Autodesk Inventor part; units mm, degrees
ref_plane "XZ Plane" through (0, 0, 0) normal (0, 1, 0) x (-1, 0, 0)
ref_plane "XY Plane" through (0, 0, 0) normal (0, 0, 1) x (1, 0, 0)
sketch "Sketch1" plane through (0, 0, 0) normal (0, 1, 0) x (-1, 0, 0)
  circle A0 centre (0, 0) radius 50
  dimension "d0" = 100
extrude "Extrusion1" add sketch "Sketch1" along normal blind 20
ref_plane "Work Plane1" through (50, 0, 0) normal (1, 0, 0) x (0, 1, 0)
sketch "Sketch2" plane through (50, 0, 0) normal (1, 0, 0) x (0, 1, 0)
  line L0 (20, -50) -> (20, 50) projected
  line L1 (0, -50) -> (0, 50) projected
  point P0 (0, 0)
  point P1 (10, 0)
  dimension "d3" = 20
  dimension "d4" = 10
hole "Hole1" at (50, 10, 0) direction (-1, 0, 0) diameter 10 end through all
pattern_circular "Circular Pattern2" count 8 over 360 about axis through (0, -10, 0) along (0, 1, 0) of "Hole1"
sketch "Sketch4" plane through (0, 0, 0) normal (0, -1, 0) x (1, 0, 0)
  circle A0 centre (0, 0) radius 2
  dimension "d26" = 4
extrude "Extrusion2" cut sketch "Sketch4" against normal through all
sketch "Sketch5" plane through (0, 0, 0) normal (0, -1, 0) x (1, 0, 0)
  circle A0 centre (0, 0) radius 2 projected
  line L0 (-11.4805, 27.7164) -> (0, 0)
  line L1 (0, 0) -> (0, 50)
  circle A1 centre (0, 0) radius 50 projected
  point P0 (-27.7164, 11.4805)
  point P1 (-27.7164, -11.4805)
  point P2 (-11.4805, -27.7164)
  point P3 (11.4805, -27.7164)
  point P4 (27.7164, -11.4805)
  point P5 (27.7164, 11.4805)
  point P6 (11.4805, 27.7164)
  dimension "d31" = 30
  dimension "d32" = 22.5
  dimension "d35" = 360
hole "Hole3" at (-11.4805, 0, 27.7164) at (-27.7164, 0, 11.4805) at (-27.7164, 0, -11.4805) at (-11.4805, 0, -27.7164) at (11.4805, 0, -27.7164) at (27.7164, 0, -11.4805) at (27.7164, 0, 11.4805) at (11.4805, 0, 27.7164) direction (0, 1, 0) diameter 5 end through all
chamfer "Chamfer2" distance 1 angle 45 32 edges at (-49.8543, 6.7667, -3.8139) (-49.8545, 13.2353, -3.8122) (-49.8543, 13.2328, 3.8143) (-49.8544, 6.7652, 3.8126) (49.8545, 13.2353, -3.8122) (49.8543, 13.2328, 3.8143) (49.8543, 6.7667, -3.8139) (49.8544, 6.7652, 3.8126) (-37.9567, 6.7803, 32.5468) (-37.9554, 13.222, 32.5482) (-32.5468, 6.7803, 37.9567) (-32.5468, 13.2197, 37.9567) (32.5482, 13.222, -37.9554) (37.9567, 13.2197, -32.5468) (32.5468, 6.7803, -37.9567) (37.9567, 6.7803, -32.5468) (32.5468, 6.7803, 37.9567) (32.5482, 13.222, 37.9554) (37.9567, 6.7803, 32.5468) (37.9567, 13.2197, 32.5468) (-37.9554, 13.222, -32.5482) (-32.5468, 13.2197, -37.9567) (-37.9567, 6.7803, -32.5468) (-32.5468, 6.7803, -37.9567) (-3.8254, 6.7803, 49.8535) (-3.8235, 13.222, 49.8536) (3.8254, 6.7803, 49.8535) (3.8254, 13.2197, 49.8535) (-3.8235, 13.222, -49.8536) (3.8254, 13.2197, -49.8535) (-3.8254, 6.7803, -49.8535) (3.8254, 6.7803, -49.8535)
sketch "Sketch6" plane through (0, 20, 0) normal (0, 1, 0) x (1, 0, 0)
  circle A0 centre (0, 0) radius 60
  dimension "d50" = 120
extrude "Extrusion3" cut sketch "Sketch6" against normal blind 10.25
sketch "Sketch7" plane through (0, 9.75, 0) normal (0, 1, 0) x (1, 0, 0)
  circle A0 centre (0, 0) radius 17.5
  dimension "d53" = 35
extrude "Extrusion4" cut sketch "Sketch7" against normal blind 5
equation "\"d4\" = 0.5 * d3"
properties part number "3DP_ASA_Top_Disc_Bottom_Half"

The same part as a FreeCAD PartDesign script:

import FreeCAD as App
import Part
import Sketcher
Q = App.Units.Quantity


def edges_at(feature, points):
    """Names of the edges that pass closest to the given points."""
    edges = feature.Shape.Edges
    near = lambda p: min(range(len(edges)), key=lambda i: edges[i].distToShape(Part.Vertex(*p))[0])
    return sorted({f"Edge{near(p) + 1}" for p in points})

doc = App.newDocument("Part")
body = doc.addObject("PartDesign::Body", "Body")

# Sketch on XZ plane
sketch1 = body.newObject("Sketcher::SketchObject", "Sketch")
sketch1.AttachmentSupport = (doc.getObject("XZ_Plane"), [""])
sketch1.MapMode = "FlatFace"
sketch1.addGeometry(Part.Circle(App.Vector(0, 0, 0), App.Vector(0, 0, 1), 50), False)
sketch1.addConstraint(Sketcher.Constraint("Coincident", 0, 3, -1, 1))
sketch1.addConstraint(Sketcher.Constraint("Diameter", 0, Q("100 mm")))
pad1 = body.newObject("PartDesign::Pad", "Pad")
pad1.Profile = sketch1
pad1.Length = 20
pad1.Reversed = True

# Sketch on YZ plane
sketch2 = body.newObject("Sketcher::SketchObject", "Sketch001")
sketch2.AttachmentSupport = (doc.getObject("YZ_Plane"), [""])
sketch2.MapMode = "FlatFace"
sketch2.AttachmentOffset = App.Placement(App.Vector(0, 0, 50), App.Rotation())
sketch2.addGeometry(Part.Circle(App.Vector(10, 0, 0), App.Vector(0, 0, 1), 5), False)
sketch2.addConstraint(Sketcher.Constraint("PointOnObject", 0, 3, -1))
sketch2.addConstraint(Sketcher.Constraint("Diameter", 0, Q("10 mm")))
sketch2.addConstraint(Sketcher.Constraint("DistanceX", -1, 1, 0, 3, Q("10 mm")))
doc.recompute()
hole = body.newObject("PartDesign::Hole", "Hole")
hole.Profile = sketch2
hole.ThreadType = "None"
hole.Diameter = 10
hole.DepthType = "ThroughAll"
doc.recompute()

polarpattern = body.newObject("PartDesign::PolarPattern", "PolarPattern")
polarpattern.Originals = [hole]
polarpattern.Axis = (doc.getObject("Y_Axis"), [""])
polarpattern.Angle = 360
polarpattern.Occurrences = 8
body.Tip = polarpattern

# Sketch on XZ plane
sketch3 = body.newObject("Sketcher::SketchObject", "Sketch002")
sketch3.AttachmentSupport = (doc.getObject("XZ_Plane"), [""])
sketch3.MapMode = "FlatFace"
sketch3.addGeometry(Part.Circle(App.Vector(0, 0, 0), App.Vector(0, 0, 1), 2), False)
sketch3.addConstraint(Sketcher.Constraint("Coincident", 0, 3, -1, 1))
sketch3.addConstraint(Sketcher.Constraint("Diameter", 0, Q("4 mm")))
pocket1 = body.newObject("PartDesign::Pocket", "Pocket")
pocket1.Profile = sketch3
pocket1.Type = "ThroughAll"

# Sketch on XZ plane
sketch4 = body.newObject("Sketcher::SketchObject", "Sketch003")
sketch4.AttachmentSupport = (doc.getObject("XZ_Plane"), [""])
sketch4.MapMode = "FlatFace"
sketch4.addGeometry(Part.Circle(App.Vector(-11.5, 27.7, 0), App.Vector(0, 0, 1), 2.5), False)
sketch4.addGeometry(Part.Circle(App.Vector(-27.7, 11.5, 0), App.Vector(0, 0, 1), 2.5), False)
sketch4.addGeometry(Part.Circle(App.Vector(-27.7, -11.5, 0), App.Vector(0, 0, 1), 2.5), False)
sketch4.addGeometry(Part.Circle(App.Vector(-11.5, -27.7, 0), App.Vector(0, 0, 1), 2.5), False)
sketch4.addGeometry(Part.Circle(App.Vector(11.5, -27.7, 0), App.Vector(0, 0, 1), 2.5), False)
sketch4.addGeometry(Part.Circle(App.Vector(27.7, -11.5, 0), App.Vector(0, 0, 1), 2.5), False)
sketch4.addGeometry(Part.Circle(App.Vector(27.7, 11.5, 0), App.Vector(0, 0, 1), 2.5), False)
sketch4.addGeometry(Part.Circle(App.Vector(11.5, 27.7, 0), App.Vector(0, 0, 1), 2.5), False)
sketch4.addConstraint(Sketcher.Constraint("Equal", 0, 1))
sketch4.addConstraint(Sketcher.Constraint("Equal", 1, 2))
sketch4.addConstraint(Sketcher.Constraint("Equal", 2, 3))
sketch4.addConstraint(Sketcher.Constraint("Equal", 3, 4))
sketch4.addConstraint(Sketcher.Constraint("Equal", 4, 5))
sketch4.addConstraint(Sketcher.Constraint("Equal", 5, 6))
sketch4.addConstraint(Sketcher.Constraint("Equal", 6, 7))
sketch4.addConstraint(Sketcher.Constraint("Symmetric", 0, 3, 4, 3, -1, 1))
sketch4.addConstraint(Sketcher.Constraint("Symmetric", 1, 3, 5, 3, -1, 1))
sketch4.addConstraint(Sketcher.Constraint("Symmetric", 2, 3, 6, 3, -1, 1))
sketch4.addConstraint(Sketcher.Constraint("Symmetric", 3, 3, 7, 3, -1, 1))
sketch4.addConstraint(Sketcher.Constraint("Symmetric", 3, 3, 4, 3, -2))
sketch4.addConstraint(Sketcher.Constraint("Symmetric", 2, 3, 5, 3, -2))
sketch4.addConstraint(Sketcher.Constraint("Diameter", 0, Q("5 mm")))
sketch4.addConstraint(Sketcher.Constraint("DistanceX", 1, 3, 0, 3, Q("16.236 mm")))
sketch4.addConstraint(Sketcher.Constraint("DistanceY", 1, 3, 0, 3, Q("16.236 mm")))
sketch4.addConstraint(Sketcher.Constraint("DistanceY", 2, 3, 1, 3, Q("22.961 mm")))
sketch4.addConstraint(Sketcher.Constraint("DistanceX", 3, 3, 4, 3, Q("22.961 mm")))
doc.recompute()
hole2 = body.newObject("PartDesign::Hole", "Hole001")
hole2.Profile = sketch4
hole2.ThreadType = "None"
hole2.Diameter = 5
hole2.DepthType = "ThroughAll"
doc.recompute()

chamfer = body.newObject("PartDesign::Chamfer", "Chamfer")
chamfer.Base = (hole2, edges_at(hole2, [
    (-49.854, 6.767, -3.814),
    (-49.855, 13.235, -3.812),
    (-49.854, 13.233, 3.814),
    (-49.854, 6.765, 3.813),
    (49.855, 13.235, -3.812),
    (49.854, 13.233, 3.814),
    (49.854, 6.767, -3.814),
    (49.854, 6.765, 3.813),
    (-37.957, 6.78, 32.547),
    (-37.955, 13.222, 32.548),
    (-32.547, 6.78, 37.957),
    (-32.547, 13.22, 37.957),
    (32.548, 13.222, -37.955),
    (37.957, 13.22, -32.547),
    (32.547, 6.78, -37.957),
    (37.957, 6.78, -32.547),
    (32.547, 6.78, 37.957),
    (32.548, 13.222, 37.955),
    (37.957, 6.78, 32.547),
    (37.957, 13.22, 32.547),
    (-37.955, 13.222, -32.548),
    (-32.547, 13.22, -37.957),
    (-37.957, 6.78, -32.547),
    (-32.547, 6.78, -37.957),
    (-3.825, 6.78, 49.853),
    (-3.824, 13.222, 49.854),
    (3.825, 6.78, 49.853),
    (3.825, 13.22, 49.853),
    (-3.824, 13.222, -49.854),
    (3.825, 13.22, -49.853),
    (-3.825, 6.78, -49.853),
    (3.825, 6.78, -49.853),
]))
chamfer.Size = 1

# Sketch on XZ plane
sketch5 = body.newObject("Sketcher::SketchObject", "Sketch004")
sketch5.AttachmentSupport = (doc.getObject("XZ_Plane"), [""])
sketch5.MapMode = "FlatFace"
sketch5.AttachmentOffset = App.Placement(App.Vector(0, 0, -20), App.Rotation())
sketch5.addGeometry(Part.Circle(App.Vector(0, 0, 0), App.Vector(0, 0, 1), 60), False)
sketch5.addConstraint(Sketcher.Constraint("Coincident", 0, 3, -1, 1))
sketch5.addConstraint(Sketcher.Constraint("Diameter", 0, Q("120 mm")))
pocket2 = body.newObject("PartDesign::Pocket", "Pocket001")
pocket2.Profile = sketch5
pocket2.Length = 10.25
pocket2.Reversed = True

# Sketch on XZ plane
sketch6 = body.newObject("Sketcher::SketchObject", "Sketch005")
sketch6.AttachmentSupport = (doc.getObject("XZ_Plane"), [""])
sketch6.MapMode = "FlatFace"
sketch6.AttachmentOffset = App.Placement(App.Vector(0, 0, -9.75), App.Rotation())
sketch6.addGeometry(Part.Circle(App.Vector(0, 0, 0), App.Vector(0, 0, 1), 18), False)
sketch6.addConstraint(Sketcher.Constraint("Coincident", 0, 3, -1, 1))
sketch6.addConstraint(Sketcher.Constraint("Diameter", 0, Q("35 mm")))
pocket3 = body.newObject("PartDesign::Pocket", "Pocket002")
pocket3.Profile = sketch6
pocket3.Length = 5
pocket3.Reversed = True

doc.recompute()
